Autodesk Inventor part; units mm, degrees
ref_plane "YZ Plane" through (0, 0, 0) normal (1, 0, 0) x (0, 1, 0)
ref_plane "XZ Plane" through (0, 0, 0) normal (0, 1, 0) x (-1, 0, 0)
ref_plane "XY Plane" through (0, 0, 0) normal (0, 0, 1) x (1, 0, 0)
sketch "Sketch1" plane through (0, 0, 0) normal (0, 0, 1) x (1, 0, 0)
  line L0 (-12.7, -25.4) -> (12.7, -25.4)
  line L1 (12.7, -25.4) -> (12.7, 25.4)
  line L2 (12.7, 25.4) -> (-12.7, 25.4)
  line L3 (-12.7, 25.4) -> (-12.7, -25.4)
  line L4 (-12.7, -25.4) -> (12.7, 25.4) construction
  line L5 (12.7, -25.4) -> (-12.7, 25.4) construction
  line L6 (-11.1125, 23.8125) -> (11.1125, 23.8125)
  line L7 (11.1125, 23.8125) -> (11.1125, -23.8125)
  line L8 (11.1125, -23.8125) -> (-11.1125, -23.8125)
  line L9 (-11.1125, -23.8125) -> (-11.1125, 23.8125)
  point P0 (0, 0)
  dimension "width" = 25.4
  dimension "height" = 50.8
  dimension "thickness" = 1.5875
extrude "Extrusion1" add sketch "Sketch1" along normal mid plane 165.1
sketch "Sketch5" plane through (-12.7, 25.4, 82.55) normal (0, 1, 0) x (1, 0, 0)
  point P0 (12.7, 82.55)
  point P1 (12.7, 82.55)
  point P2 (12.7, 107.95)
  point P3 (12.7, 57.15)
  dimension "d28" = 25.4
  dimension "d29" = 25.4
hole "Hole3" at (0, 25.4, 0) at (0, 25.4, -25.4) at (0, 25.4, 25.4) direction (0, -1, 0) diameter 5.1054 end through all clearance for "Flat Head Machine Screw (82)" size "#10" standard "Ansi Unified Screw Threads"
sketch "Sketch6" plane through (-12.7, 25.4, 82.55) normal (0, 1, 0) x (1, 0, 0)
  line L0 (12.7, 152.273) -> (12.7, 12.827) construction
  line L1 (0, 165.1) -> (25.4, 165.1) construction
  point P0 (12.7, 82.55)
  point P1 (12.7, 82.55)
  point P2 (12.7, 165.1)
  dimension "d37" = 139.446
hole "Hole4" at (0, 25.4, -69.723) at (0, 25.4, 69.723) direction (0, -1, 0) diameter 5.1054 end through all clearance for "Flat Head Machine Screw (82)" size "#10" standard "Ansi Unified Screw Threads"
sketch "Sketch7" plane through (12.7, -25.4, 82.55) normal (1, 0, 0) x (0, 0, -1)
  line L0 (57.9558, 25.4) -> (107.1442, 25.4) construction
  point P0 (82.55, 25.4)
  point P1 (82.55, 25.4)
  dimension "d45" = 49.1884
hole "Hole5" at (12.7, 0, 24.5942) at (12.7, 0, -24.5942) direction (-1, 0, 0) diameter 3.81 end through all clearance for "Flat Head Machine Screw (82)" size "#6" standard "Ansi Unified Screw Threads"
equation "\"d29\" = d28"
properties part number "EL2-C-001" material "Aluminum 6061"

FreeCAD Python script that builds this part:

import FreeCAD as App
import Part
import Sketcher
Q = App.Units.Quantity


def add_polygon(sketch, points):
    """Adds a closed chain of lines whose ends are joined by coincident constraints."""
    first, n = sketch.GeometryCount, len(points)
    for a, b in zip(points, points[1:] + points[:1]):
        sketch.addGeometry(Part.LineSegment(App.Vector(*a, 0), App.Vector(*b, 0)), False)
    for i in range(n):
        sketch.addConstraint(Sketcher.Constraint("Coincident", first + i, 2, first + (i + 1) % n, 1))

doc = App.newDocument("Part")
body = doc.addObject("PartDesign::Body", "Body")

# Sketch on XY plane
sketch1 = doc.addObject("Sketcher::SketchObject", "Sketch")
body.addObject(sketch1)
sketch1.AttachmentSupport = (doc.XY_Plane, [""])
sketch1.MapMode = "FlatFace"
add_polygon(sketch1, [(-13, 25), (-13, -25), (13, -25), (13, 25)])  # lines 0-3
add_polygon(sketch1, [(-11, -24), (-11, 24), (11, 24), (11, -24)])  # lines 4-7
sketch1.addConstraint([
    Sketcher.Constraint("Vertical", 0),
    Sketcher.Constraint("Horizontal", 1),
    Sketcher.Constraint("Vertical", 2),
    Sketcher.Constraint("Horizontal", 3),
    Sketcher.Constraint("Vertical", 4),
    Sketcher.Constraint("Horizontal", 5),
    Sketcher.Constraint("Vertical", 6),
    Sketcher.Constraint("Horizontal", 7),
    Sketcher.Constraint("Symmetric", 0, 2, 2, 2, -1, 1),
    Sketcher.Constraint("Symmetric", 4, 2, 6, 2, -1, 1),
    Sketcher.Constraint("DistanceX", 1, 1, 1, 2, Q("1 in")),
    Sketcher.Constraint("DistanceY", 0, 2, 0, 1, Q("2 in")),
    Sketcher.Constraint("DistanceX", 3, 2, 4, 2, Q("0.0625 in")),
    Sketcher.Constraint("DistanceY", 4, 2, 3, 2, Q("0.0625 in")),
])
pad1 = doc.addObject("PartDesign::Pad", "Pad")
body.addObject(pad1)
pad1.Profile = sketch1
pad1.Length = Q("6.5 in")
pad1.Midplane = True

# Sketch on XZ plane
sketch2 = doc.addObject("Sketcher::SketchObject", "Sketch001")
body.addObject(sketch2)
sketch2.AttachmentSupport = (doc.XZ_Plane, [""])
sketch2.MapMode = "FlatFace"
sketch2.AttachmentOffset = App.Placement(App.Vector(0, 0, -1 * 25.4), App.Rotation())
sketch2.addGeometry([
    Part.Circle(App.Vector(0, 0, 0), App.Vector(0, 0, 1), 2.6),
    Part.Circle(App.Vector(0, -25.4, 0), App.Vector(0, 0, 1), 2.6),
    Part.Circle(App.Vector(0, 25.4, 0), App.Vector(0, 0, 1), 2.6),
], False)
sketch2.addConstraint([
    Sketcher.Constraint("Coincident", 0, 3, -1, 1),
    Sketcher.Constraint("Equal", 0, 1),
    Sketcher.Constraint("Equal", 1, 2),
    Sketcher.Constraint("Symmetric", 1, 3, 2, 3, -1, 1),
    Sketcher.Constraint("PointOnObject", 1, 3, -2),
    Sketcher.Constraint("Diameter", 0, Q("0.201 in")),
    Sketcher.Constraint("DistanceY", 1, 3, -1, 1, Q("1 in")),
])
doc.recompute()
hole = doc.addObject("PartDesign::Hole", "Hole")
body.addObject(hole)
hole.Profile = sketch2
hole.ThreadType = "None"
hole.Diameter = Q("0.201 in")
hole.DepthType = "ThroughAll"
hole.Reversed = True

# Sketch on XZ plane
sketch3 = doc.addObject("Sketcher::SketchObject", "Sketch002")
body.addObject(sketch3)
sketch3.AttachmentSupport = (doc.XZ_Plane, [""])
sketch3.MapMode = "FlatFace"
sketch3.AttachmentOffset = App.Placement(App.Vector(0, 0, -1 * 25.4), App.Rotation())
sketch3.addGeometry([
    Part.Circle(App.Vector(0, -69.7, 0), App.Vector(0, 0, 1), 2.6),
    Part.Circle(App.Vector(0, 69.7, 0), App.Vector(0, 0, 1), 2.6),
], False)
sketch3.addConstraint([
    Sketcher.Constraint("Equal", 0, 1),
    Sketcher.Constraint("Symmetric", 0, 3, 1, 3, -1, 1),
    Sketcher.Constraint("PointOnObject", 0, 3, -2),
    Sketcher.Constraint("Diameter", 0, Q("0.201 in")),
    Sketcher.Constraint("DistanceY", 0, 3, 1, 3, Q("5.49 in")),
])
doc.recompute()
hole2 = doc.addObject("PartDesign::Hole", "Hole001")
body.addObject(hole2)
hole2.Profile = sketch3
hole2.ThreadType = "None"
hole2.Diameter = Q("0.201 in")
hole2.DepthType = "ThroughAll"
hole2.Reversed = True

# Sketch on YZ plane
sketch4 = doc.addObject("Sketcher::SketchObject", "Sketch003")
body.addObject(sketch4)
sketch4.AttachmentSupport = (doc.YZ_Plane, [""])
sketch4.MapMode = "FlatFace"
sketch4.AttachmentOffset = App.Placement(App.Vector(0, 0, 0.5 * 25.4), App.Rotation())
sketch4.addGeometry([
    Part.Circle(App.Vector(0, 24.6, 0), App.Vector(0, 0, 1), 1.9),
    Part.Circle(App.Vector(0, -24.6, 0), App.Vector(0, 0, 1), 1.9),
], False)
sketch4.addConstraint([
    Sketcher.Constraint("Equal", 0, 1),
    Sketcher.Constraint("Symmetric", 0, 3, 1, 3, -1, 1),
    Sketcher.Constraint("PointOnObject", 0, 3, -2),
    Sketcher.Constraint("Diameter", 0, Q("0.15 in")),
    Sketcher.Constraint("DistanceY", -1, 1, 0, 3, Q("24.5942 mm")),
])
doc.recompute()
hole3 = doc.addObject("PartDesign::Hole", "Hole002")
body.addObject(hole3)
hole3.Profile = sketch4
hole3.ThreadType = "None"
hole3.Diameter = Q("0.15 in")
hole3.DepthType = "ThroughAll"

doc.recompute()
